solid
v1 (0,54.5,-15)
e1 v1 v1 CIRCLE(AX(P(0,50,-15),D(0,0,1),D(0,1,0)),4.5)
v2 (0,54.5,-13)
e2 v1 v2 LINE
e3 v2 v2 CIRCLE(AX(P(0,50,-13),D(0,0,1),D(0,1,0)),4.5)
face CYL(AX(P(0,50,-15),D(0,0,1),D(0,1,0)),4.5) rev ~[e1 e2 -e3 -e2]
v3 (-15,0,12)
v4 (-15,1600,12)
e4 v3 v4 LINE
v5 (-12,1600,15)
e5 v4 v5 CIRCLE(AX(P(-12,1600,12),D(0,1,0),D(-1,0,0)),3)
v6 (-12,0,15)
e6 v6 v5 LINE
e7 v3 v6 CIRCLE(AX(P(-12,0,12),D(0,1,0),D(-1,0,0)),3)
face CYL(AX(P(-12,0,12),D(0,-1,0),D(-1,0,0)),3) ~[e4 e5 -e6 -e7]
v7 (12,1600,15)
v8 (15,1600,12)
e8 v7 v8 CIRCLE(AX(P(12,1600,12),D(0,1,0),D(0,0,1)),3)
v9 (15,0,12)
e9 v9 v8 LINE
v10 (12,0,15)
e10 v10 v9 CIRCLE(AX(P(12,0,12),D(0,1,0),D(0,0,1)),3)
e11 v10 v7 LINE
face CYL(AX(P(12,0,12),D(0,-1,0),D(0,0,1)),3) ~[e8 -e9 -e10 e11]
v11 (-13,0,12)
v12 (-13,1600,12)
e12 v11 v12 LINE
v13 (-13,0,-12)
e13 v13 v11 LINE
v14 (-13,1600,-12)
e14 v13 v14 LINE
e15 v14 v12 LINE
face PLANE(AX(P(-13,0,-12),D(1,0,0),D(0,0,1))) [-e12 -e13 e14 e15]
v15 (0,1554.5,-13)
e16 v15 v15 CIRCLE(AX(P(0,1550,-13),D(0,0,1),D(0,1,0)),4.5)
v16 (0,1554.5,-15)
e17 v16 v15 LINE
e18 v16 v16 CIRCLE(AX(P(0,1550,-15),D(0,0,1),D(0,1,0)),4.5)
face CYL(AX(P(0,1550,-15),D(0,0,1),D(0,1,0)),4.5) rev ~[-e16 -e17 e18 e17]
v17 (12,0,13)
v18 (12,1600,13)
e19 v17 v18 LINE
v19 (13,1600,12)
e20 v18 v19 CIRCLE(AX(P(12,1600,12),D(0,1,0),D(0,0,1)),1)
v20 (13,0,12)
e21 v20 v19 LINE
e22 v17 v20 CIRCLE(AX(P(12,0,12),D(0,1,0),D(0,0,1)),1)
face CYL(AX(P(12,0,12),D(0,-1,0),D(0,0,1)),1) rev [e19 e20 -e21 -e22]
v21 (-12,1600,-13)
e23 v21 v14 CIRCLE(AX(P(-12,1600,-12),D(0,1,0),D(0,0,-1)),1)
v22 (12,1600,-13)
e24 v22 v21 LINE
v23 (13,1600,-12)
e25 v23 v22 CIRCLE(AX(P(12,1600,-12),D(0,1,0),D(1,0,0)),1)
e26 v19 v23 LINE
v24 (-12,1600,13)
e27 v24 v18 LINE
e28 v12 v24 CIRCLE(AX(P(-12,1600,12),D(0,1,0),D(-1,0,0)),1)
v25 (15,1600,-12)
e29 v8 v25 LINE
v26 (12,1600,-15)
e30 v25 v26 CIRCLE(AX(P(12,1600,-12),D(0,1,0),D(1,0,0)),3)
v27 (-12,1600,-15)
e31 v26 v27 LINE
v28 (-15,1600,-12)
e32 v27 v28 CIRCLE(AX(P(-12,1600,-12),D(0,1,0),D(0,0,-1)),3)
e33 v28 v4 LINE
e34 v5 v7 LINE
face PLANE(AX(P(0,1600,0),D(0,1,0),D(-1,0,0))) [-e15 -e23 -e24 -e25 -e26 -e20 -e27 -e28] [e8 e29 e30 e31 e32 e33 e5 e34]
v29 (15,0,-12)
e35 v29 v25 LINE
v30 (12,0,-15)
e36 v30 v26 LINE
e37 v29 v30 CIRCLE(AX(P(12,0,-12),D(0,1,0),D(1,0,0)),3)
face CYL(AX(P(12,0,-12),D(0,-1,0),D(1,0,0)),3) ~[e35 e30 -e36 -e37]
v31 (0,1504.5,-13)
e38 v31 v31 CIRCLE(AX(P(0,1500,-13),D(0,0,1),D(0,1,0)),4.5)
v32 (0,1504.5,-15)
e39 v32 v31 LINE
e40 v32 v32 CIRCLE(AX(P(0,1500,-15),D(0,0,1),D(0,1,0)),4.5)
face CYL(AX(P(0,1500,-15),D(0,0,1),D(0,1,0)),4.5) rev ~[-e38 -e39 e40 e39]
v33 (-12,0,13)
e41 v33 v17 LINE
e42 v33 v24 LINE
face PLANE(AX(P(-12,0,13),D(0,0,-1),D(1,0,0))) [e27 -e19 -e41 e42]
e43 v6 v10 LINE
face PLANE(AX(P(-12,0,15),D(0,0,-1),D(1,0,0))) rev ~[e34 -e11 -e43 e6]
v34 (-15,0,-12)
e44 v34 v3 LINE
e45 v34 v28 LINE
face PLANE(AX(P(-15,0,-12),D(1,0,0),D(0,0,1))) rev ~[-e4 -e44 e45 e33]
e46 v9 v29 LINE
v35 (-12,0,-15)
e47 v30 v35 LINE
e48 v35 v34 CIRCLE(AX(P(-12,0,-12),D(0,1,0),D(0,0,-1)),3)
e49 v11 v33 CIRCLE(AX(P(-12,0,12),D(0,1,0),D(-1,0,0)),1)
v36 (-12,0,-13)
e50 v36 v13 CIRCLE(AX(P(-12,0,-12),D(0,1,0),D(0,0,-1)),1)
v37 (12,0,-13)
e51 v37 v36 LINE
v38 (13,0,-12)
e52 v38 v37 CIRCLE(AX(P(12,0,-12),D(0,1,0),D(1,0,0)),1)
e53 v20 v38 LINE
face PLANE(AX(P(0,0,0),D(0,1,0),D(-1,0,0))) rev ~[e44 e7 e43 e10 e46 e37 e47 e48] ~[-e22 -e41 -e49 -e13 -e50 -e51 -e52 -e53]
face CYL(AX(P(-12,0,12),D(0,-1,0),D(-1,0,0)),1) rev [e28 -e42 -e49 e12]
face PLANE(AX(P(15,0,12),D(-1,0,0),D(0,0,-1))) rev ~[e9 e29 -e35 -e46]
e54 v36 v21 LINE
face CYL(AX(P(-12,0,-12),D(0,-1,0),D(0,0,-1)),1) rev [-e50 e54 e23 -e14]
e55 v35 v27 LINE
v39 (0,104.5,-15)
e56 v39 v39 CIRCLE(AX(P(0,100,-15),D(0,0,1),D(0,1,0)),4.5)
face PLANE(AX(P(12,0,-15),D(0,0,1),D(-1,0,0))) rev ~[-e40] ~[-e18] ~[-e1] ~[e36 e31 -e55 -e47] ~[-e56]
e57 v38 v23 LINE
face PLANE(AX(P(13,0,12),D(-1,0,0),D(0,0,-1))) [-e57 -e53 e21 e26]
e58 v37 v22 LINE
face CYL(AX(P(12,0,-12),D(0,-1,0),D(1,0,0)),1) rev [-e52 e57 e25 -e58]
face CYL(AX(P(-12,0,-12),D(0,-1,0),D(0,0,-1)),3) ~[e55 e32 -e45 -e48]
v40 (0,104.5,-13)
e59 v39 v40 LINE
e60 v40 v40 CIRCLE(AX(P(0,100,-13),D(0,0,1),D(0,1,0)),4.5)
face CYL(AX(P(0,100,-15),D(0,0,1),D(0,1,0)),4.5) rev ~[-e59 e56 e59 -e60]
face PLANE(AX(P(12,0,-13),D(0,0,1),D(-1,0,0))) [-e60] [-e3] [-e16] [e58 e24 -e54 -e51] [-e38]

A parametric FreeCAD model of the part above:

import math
import FreeCAD as App
import Part
import Sketcher

V = App.Vector

doc = App.newDocument("Part")
body = doc.addObject("PartDesign::Body", "Body")

sketch1 = doc.addObject("Sketcher::SketchObject", "Sketch")
body.addObject(sketch1)
sketch1.AttachmentSupport = (doc.XZ_Plane, [""])
sketch1.MapMode = "FlatFace"
sketch1.addGeometry([
    Part.ArcOfCircle(Part.Circle(V(12, -12, 0), V(0, 0, 1), 3), math.radians(-90), math.radians(0)),
    Part.LineSegment(V(12, -15, 0), V(-12, -15, 0)),
    Part.ArcOfCircle(Part.Circle(V(-12, -12, 0), V(0, 0, 1), 3), math.radians(180), math.radians(270)),
    Part.LineSegment(V(-15, -12, 0), V(-15, 12, 0)),
    Part.ArcOfCircle(Part.Circle(V(-12, 12, 0), V(0, 0, 1), 3), math.radians(90), math.radians(180)),
    Part.LineSegment(V(-12, 15, 0), V(12, 15, 0)),
    Part.ArcOfCircle(Part.Circle(V(12, 12, 0), V(0, 0, 1), 3), math.radians(0), math.radians(90)),
    Part.LineSegment(V(15, 12, 0), V(15, -12, 0)),
    Part.LineSegment(V(-13, 12, 0), V(-13, -12, 0)),
    Part.ArcOfCircle(Part.Circle(V(-12, -12, 0), V(0, 0, 1), 1), math.radians(180), math.radians(270)),
    Part.LineSegment(V(-12, -13, 0), V(12, -13, 0)),
    Part.ArcOfCircle(Part.Circle(V(12, -12, 0), V(0, 0, 1), 1), math.radians(-90), math.radians(0)),
    Part.LineSegment(V(13, -12, 0), V(13, 12, 0)),
    Part.ArcOfCircle(Part.Circle(V(12, 12, 0), V(0, 0, 1), 1), math.radians(0), math.radians(90)),
    Part.LineSegment(V(12, 13, 0), V(-12, 13, 0)),
    Part.ArcOfCircle(Part.Circle(V(-12, 12, 0), V(0, 0, 1), 1), math.radians(90), math.radians(180)),
], False)
sketch1.addConstraint([
    Sketcher.Constraint("Tangent", 0, 1, 1, 1),
    Sketcher.Constraint("Tangent", 1, 2, 2, 2),
    Sketcher.Constraint("Tangent", 2, 1, 3, 1),
    Sketcher.Constraint("Tangent", 3, 2, 4, 2),
    Sketcher.Constraint("Tangent", 4, 1, 5, 1),
    Sketcher.Constraint("Tangent", 5, 2, 6, 2),
    Sketcher.Constraint("Tangent", 6, 1, 7, 1),
    Sketcher.Constraint("Tangent", 7, 2, 0, 2),
    Sketcher.Constraint("Tangent", 8, 2, 9, 1),
    Sketcher.Constraint("Tangent", 9, 2, 10, 1),
    Sketcher.Constraint("Tangent", 10, 2, 11, 1),
    Sketcher.Constraint("Tangent", 11, 2, 12, 1),
    Sketcher.Constraint("Tangent", 12, 2, 13, 1),
    Sketcher.Constraint("Tangent", 13, 2, 14, 1),
    Sketcher.Constraint("Tangent", 14, 2, 15, 1),
    Sketcher.Constraint("Tangent", 15, 2, 8, 1),
    Sketcher.Constraint("Horizontal", 1),
    Sketcher.Constraint("Vertical", 3),
    Sketcher.Constraint("Horizontal", 5),
    Sketcher.Constraint("Vertical", 7),
    Sketcher.Constraint("Vertical", 8),
    Sketcher.Constraint("Horizontal", 10),
    Sketcher.Constraint("Vertical", 12),
    Sketcher.Constraint("Horizontal", 14),
    Sketcher.Constraint("Coincident", 9, 3, 2, 3),
    Sketcher.Constraint("Coincident", 11, 3, 0, 3),
    Sketcher.Constraint("Coincident", 13, 3, 6, 3),
    Sketcher.Constraint("Equal", 0, 2),
    Sketcher.Constraint("Equal", 2, 4),
    Sketcher.Constraint("Equal", 4, 6),
    Sketcher.Constraint("Equal", 13, 15),
    Sketcher.Constraint("Symmetric", 0, 3, 4, 3, -1, 1),
    Sketcher.Constraint("Equal", 14, 3),
    Sketcher.Constraint("Radius", 9, 1.0),
    Sketcher.Constraint("Radius", 0, 3.0),
    Sketcher.Constraint("DistanceX", 1, 2, 1, 1, 24.0),
])
pad1 = doc.addObject("PartDesign::Pad", "Pad")
body.addObject(pad1)
pad1.Profile = sketch1
pad1.Length = 1600
pad1.Reversed = True

sketch2 = doc.addObject("Sketcher::SketchObject", "Sketch001")
body.addObject(sketch2)
sketch2.AttachmentSupport = (doc.XY_Plane, [""])
sketch2.MapMode = "FlatFace"
sketch2.AttachmentOffset = App.Placement(V(0, 0, -15), App.Rotation())
sketch2.addGeometry([
    Part.Circle(V(0, 50, 0), V(0, 0, 1), 4.5),
    Part.Circle(V(0, 100, 0), V(0, 0, 1), 4.5),
    Part.Circle(V(0, 1550, 0), V(0, 0, 1), 4.5),
    Part.Circle(V(0, 1500, 0), V(0, 0, 1), 4.5),
], False)
sketch2.addConstraint([
    Sketcher.Constraint("Equal", 0, 1),
    Sketcher.Constraint("Equal", 1, 2),
    Sketcher.Constraint("Equal", 2, 3),
    Sketcher.Constraint("PointOnObject", 0, 3, -2),
    Sketcher.Constraint("PointOnObject", 1, 3, -2),
    Sketcher.Constraint("PointOnObject", 2, 3, -2),
    Sketcher.Constraint("PointOnObject", 3, 3, -2),
    Sketcher.Constraint("Diameter", 0, 9.0),
    Sketcher.Constraint("DistanceY", -1, 1, 0, 3, 50.0),
    Sketcher.Constraint("DistanceY", -1, 1, 1, 3, 100.0),
    Sketcher.Constraint("DistanceY", -1, 1, 2, 3, 1550.0),
    Sketcher.Constraint("DistanceY", -1, 1, 3, 3, 1500.0),
])
doc.recompute()
hole = doc.addObject("PartDesign::Hole", "Hole")
body.addObject(hole)
hole.Profile = sketch2
hole.ThreadType = "None"
hole.Diameter = 9
hole.DepthType = "Dimension"
hole.Depth = 20.2
hole.DrillPoint = "Angled"
hole.DrillPointAngle = 118
hole.Reversed = True

doc.recompute()
